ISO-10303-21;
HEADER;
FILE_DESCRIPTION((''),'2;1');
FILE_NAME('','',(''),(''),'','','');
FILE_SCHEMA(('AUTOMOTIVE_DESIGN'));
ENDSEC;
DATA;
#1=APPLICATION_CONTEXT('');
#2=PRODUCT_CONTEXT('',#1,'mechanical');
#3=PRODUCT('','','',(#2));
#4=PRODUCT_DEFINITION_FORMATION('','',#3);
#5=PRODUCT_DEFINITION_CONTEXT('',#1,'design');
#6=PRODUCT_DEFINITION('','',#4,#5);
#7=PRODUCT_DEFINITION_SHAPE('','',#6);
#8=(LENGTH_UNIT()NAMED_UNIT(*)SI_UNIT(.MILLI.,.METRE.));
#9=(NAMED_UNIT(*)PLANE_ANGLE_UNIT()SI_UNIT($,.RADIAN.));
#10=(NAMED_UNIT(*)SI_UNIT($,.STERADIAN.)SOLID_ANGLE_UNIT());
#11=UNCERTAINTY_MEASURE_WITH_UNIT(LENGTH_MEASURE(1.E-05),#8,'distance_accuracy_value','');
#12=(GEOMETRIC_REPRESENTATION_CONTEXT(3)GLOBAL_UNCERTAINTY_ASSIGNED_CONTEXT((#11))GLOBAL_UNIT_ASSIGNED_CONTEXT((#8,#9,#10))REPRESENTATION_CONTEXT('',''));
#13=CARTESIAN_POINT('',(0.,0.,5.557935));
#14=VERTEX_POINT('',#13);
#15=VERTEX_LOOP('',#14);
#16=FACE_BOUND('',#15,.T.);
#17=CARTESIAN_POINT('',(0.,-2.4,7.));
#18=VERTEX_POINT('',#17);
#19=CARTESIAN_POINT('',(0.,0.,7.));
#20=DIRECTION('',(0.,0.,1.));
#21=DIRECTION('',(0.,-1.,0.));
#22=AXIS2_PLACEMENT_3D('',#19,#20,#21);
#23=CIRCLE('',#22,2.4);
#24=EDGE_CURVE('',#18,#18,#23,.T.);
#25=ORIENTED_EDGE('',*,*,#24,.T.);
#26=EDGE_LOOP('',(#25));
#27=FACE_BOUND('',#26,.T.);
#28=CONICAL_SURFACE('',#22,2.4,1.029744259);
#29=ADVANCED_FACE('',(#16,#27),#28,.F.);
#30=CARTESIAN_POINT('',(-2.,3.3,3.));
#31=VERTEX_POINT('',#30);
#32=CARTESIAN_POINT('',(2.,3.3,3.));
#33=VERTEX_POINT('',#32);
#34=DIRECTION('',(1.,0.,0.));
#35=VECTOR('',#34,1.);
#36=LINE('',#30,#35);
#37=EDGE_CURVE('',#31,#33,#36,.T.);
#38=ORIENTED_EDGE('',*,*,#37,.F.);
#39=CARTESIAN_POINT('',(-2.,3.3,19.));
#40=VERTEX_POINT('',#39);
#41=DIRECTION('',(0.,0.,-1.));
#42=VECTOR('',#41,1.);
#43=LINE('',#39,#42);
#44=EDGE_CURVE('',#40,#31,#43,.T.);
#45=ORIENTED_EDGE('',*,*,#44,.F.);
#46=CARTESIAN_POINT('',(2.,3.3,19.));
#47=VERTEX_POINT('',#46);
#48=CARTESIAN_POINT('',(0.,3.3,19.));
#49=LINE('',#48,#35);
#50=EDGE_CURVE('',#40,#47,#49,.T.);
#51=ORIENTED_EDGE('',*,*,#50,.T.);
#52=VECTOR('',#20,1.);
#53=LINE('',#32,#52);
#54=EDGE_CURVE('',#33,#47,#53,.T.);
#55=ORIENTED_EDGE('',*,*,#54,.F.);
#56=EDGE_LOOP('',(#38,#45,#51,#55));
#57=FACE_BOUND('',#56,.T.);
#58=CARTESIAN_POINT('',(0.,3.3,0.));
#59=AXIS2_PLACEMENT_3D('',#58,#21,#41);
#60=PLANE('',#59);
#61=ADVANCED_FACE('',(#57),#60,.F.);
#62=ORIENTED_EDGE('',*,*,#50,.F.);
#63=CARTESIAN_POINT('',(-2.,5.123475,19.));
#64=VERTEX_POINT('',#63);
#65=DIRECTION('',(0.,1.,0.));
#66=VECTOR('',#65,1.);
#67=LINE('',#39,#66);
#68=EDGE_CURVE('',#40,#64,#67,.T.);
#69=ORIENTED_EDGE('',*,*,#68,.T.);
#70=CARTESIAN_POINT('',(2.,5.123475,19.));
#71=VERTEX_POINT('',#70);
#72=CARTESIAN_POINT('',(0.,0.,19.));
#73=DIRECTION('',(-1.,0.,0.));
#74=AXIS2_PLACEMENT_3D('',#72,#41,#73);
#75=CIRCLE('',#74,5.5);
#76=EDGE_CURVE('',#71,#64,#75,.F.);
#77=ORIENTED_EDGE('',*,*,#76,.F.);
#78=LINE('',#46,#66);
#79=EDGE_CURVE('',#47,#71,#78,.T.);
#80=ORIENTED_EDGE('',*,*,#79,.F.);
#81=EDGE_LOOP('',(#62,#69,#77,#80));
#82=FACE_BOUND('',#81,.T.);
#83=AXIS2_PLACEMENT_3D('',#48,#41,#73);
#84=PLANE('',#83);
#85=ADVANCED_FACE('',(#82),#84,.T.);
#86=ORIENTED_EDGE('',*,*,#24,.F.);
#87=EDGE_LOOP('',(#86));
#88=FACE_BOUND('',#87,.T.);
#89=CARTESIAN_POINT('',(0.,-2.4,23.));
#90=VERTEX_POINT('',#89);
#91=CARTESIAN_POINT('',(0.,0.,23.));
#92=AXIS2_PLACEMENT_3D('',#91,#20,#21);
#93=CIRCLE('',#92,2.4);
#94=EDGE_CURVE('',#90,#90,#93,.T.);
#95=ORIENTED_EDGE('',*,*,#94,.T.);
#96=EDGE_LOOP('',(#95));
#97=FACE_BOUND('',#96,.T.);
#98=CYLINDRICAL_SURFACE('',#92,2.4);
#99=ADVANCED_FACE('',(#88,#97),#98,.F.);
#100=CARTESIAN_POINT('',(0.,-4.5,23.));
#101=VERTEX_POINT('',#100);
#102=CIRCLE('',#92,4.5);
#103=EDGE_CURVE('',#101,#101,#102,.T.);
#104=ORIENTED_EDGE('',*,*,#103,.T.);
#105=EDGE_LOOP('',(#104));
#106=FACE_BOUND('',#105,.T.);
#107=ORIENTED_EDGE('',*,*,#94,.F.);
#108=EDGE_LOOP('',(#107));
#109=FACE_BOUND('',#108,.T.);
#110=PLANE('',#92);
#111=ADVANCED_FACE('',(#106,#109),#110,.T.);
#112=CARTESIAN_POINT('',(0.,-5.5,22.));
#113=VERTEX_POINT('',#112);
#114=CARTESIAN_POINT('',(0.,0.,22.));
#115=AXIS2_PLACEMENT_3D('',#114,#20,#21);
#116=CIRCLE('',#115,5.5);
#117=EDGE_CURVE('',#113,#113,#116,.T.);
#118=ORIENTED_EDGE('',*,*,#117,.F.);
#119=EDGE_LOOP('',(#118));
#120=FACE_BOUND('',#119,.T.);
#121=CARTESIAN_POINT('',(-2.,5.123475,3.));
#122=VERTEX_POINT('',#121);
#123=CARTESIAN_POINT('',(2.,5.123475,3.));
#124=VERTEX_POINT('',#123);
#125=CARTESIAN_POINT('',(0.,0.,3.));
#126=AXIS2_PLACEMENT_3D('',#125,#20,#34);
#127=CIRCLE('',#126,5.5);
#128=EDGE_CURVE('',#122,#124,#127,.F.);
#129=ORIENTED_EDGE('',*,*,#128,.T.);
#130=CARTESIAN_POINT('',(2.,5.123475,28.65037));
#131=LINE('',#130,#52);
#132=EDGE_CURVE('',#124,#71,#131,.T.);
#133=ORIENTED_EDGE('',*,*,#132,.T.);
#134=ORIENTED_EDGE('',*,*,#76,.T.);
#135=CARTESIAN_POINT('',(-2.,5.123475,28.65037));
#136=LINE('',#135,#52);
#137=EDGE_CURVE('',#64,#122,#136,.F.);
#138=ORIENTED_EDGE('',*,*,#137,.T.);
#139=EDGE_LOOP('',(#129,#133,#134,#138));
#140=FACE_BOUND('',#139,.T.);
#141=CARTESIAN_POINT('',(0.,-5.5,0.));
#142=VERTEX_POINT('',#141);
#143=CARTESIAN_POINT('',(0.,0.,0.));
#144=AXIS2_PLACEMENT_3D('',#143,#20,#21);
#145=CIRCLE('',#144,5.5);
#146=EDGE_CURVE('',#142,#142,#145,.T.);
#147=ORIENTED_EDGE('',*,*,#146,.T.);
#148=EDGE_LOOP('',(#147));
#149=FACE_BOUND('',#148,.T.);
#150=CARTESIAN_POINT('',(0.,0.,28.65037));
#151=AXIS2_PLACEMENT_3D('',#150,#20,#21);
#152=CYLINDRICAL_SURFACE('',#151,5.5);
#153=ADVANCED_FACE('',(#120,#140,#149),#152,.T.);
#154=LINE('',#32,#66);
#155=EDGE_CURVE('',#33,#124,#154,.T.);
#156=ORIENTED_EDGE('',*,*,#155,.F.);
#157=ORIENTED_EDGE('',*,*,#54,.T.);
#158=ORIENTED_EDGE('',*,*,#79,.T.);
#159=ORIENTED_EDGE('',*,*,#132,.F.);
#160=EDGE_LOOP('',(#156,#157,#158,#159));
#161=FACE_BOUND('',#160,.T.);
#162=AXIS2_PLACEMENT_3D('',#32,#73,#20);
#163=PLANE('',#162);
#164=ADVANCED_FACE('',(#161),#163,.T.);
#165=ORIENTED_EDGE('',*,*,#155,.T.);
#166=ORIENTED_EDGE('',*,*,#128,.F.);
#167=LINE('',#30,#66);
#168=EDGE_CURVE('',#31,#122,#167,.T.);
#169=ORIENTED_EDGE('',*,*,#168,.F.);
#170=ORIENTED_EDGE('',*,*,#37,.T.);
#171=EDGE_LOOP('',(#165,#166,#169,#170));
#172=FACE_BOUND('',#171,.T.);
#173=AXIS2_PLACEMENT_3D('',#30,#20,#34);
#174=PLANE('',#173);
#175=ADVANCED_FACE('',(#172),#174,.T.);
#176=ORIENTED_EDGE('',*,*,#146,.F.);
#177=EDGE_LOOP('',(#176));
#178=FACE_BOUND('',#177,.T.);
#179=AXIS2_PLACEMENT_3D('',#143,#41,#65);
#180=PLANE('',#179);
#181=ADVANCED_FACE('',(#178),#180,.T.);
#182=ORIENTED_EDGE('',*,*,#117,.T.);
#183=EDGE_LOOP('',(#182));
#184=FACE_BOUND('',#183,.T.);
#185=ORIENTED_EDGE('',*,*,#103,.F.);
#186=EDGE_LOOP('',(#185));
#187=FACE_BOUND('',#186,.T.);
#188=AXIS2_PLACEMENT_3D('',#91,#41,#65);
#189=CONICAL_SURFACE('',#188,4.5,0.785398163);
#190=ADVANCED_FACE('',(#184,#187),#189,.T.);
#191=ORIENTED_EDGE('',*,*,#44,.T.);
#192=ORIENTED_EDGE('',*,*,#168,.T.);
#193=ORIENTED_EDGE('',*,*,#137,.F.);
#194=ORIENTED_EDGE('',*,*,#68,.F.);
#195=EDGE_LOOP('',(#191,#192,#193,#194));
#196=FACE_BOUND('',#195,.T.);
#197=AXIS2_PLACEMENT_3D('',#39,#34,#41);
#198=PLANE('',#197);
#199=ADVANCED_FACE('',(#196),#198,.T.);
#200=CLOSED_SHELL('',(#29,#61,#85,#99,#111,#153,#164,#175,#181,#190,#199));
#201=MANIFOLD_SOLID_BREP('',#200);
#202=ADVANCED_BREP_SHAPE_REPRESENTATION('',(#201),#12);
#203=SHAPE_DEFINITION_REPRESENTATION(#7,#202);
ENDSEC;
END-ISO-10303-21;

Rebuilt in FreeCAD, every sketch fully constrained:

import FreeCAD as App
import Part
import Sketcher
Q = App.Units.Quantity


def add_polygon(sketch, points):
    """Adds a closed chain of lines whose ends are joined by coincident constraints."""
    first, n = sketch.GeometryCount, len(points)
    for a, b in zip(points, points[1:] + points[:1]):
        sketch.addGeometry(Part.LineSegment(App.Vector(*a, 0), App.Vector(*b, 0)), False)
    for i in range(n):
        sketch.addConstraint(Sketcher.Constraint("Coincident", first + i, 2, first + (i + 1) % n, 1))

doc = App.newDocument("Part")
body = doc.addObject("PartDesign::Body", "Body")

sketch1 = body.newObject("Sketcher::SketchObject", "Sketch")
sketch1.AttachmentSupport = (doc.getObject("YZ_Plane"), [""])
sketch1.MapMode = "FlatFace"
add_polygon(sketch1, [(0, 0), (0, 23), (-4.5, 23), (-5.5, 22), (-5.5, 0)])
sketch1.addConstraint([
    Sketcher.Constraint("Vertical", 0),
    Sketcher.Constraint("Horizontal", 1),
    Sketcher.Constraint("Vertical", 3),
    Sketcher.Constraint("Horizontal", 4),
    Sketcher.Constraint("Coincident", 4, 2, -1, 1),
    Sketcher.Constraint("DistanceY", 0, 1, 0, 2, Q("23 mm")),
    Sketcher.Constraint("DistanceY", 3, 2, 3, 1, Q("22 mm")),
    Sketcher.Constraint("Angle", 2, Q("-135 deg")),
    Sketcher.Constraint("DistanceX", 1, 2, 1, 1, Q("4.5 mm")),
])
revolution = body.newObject("PartDesign::Revolution", "Revolution")
revolution.Profile = sketch1
revolution.ReferenceAxis = (sketch1, ["V_Axis"])
revolution.Angle = 360

sketch2 = body.newObject("Sketcher::SketchObject", "Sketch001")
sketch2.AttachmentSupport = (doc.getObject("XY_Plane"), [""])
sketch2.MapMode = "FlatFace"
sketch2.AttachmentOffset = App.Placement(App.Vector(0, 0, 23), App.Rotation())
sketch2.addGeometry(Part.Circle(App.Vector(0, 0, 0), App.Vector(0, 0, 1), 2.4), False)
sketch2.addConstraint([
    Sketcher.Constraint("Coincident", 0, 3, -1, 1),
    Sketcher.Constraint("Diameter", 0, Q("4.8 mm")),
])
doc.recompute()
hole = body.newObject("PartDesign::Hole", "Hole")
hole.Profile = sketch2
hole.ThreadType = "None"
hole.Diameter = 4.8
hole.DepthType = "Dimension"
hole.Depth = 16
hole.DrillPoint = "Angled"
hole.DrillPointAngle = 118

sketch3 = body.newObject("Sketcher::SketchObject", "Sketch002")
sketch3.AttachmentSupport = (doc.getObject("XZ_Plane"), [""])
sketch3.MapMode = "FlatFace"
sketch3.AttachmentOffset = App.Placement(App.Vector(0, 0, -5.5), App.Rotation())
add_polygon(sketch3, [(2, 19), (2, 3), (-2, 3), (-2, 19)])
sketch3.addConstraint([
    Sketcher.Constraint("Vertical", 0),
    Sketcher.Constraint("Horizontal", 1),
    Sketcher.Constraint("Vertical", 2),
    Sketcher.Constraint("Horizontal", 3),
    Sketcher.Constraint("DistanceX", 1, 2, 1, 1, Q("4 mm")),
    Sketcher.Constraint("DistanceY", 0, 2, 0, 1, Q("16 mm")),
    Sketcher.Constraint("DistanceX", -1, 1, 0, 2, Q("2 mm")),
    Sketcher.Constraint("DistanceY", -1, 1, 0, 2, Q("3 mm")),
])
pocket1 = body.newObject("PartDesign::Pocket", "Pocket")
pocket1.Profile = sketch3
pocket1.Length = 2.2
pocket1.Reversed = True

doc.recompute()
